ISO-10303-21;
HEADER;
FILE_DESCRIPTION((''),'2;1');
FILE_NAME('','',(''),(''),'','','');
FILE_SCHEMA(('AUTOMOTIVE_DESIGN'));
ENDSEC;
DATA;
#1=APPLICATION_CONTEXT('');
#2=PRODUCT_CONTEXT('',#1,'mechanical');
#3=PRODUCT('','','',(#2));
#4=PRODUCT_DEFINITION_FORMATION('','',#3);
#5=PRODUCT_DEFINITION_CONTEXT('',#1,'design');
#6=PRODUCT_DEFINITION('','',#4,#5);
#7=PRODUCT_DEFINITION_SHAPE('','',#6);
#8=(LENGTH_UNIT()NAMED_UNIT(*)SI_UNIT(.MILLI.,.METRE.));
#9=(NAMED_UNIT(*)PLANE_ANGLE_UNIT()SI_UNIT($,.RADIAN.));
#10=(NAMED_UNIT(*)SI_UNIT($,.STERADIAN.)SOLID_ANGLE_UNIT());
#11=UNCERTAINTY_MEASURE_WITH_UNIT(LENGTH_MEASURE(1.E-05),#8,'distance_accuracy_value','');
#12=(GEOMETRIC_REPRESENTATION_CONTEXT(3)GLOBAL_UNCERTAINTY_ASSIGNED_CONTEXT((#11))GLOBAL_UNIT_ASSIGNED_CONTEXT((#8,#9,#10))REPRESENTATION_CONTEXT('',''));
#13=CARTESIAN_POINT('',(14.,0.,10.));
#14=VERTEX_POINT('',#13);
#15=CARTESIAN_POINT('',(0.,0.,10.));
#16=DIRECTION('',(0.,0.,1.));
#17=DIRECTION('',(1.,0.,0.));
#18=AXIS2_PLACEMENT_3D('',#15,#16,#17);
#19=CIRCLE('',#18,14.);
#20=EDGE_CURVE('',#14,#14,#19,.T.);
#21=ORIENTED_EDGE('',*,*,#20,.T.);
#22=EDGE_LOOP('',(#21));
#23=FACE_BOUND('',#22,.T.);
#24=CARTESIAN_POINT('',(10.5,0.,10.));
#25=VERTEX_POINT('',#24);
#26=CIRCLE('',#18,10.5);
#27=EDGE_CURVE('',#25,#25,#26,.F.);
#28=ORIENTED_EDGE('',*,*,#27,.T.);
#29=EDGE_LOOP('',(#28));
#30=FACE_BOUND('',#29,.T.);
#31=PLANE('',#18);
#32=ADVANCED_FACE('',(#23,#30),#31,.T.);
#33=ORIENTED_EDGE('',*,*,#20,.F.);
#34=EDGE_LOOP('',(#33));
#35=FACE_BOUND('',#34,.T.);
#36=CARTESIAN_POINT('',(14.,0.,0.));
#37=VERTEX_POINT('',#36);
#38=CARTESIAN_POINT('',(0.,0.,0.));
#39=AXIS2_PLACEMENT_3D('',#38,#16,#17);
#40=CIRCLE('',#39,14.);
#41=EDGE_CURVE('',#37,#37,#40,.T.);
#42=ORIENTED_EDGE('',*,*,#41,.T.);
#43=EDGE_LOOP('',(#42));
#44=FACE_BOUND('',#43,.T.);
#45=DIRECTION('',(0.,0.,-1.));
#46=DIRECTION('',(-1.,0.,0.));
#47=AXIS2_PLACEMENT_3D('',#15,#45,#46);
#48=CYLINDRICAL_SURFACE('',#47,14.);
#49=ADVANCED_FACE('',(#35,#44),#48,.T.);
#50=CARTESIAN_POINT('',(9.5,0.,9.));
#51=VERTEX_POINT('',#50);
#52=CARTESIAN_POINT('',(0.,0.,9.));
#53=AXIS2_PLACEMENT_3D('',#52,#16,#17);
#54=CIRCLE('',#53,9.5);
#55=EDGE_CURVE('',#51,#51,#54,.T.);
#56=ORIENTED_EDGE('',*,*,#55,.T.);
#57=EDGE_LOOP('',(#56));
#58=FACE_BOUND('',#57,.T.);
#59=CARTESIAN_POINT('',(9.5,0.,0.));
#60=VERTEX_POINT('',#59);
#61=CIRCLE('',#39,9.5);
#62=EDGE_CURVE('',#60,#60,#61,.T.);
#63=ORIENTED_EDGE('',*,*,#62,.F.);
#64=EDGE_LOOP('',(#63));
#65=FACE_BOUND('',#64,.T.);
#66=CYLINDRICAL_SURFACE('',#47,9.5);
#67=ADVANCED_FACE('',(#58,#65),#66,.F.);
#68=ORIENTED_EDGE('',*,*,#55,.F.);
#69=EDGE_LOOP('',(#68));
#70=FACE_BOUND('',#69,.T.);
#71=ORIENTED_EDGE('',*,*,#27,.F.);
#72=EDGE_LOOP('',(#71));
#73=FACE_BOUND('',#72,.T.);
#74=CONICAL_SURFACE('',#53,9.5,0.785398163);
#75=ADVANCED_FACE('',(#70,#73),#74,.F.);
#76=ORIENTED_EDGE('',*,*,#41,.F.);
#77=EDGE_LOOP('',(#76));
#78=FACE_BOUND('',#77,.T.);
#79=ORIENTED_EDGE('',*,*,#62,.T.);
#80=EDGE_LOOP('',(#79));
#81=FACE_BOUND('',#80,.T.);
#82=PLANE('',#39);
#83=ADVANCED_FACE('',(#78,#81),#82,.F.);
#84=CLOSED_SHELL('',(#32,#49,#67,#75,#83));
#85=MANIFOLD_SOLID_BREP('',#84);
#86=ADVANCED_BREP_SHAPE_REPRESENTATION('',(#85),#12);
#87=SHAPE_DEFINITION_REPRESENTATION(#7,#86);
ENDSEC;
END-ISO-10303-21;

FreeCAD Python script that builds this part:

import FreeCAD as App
import Part
import Sketcher


def edges_at(feature, points):
    """Names of the edges that pass closest to the given points."""
    edges = feature.Shape.Edges
    near = lambda p: min(range(len(edges)), key=lambda i: edges[i].distToShape(Part.Vertex(*p))[0])
    return sorted({f"Edge{near(p) + 1}" for p in points})

doc = App.newDocument("Part")
body = doc.addObject("PartDesign::Body", "Body")

# Sketch on XY plane
sketch1 = body.newObject("Sketcher::SketchObject", "Sketch")
sketch1.AttachmentSupport = (doc.getObject("XY_Plane"), [""])
sketch1.MapMode = "FlatFace"
sketch1.addGeometry(Part.Circle(App.Vector(0, 0, 0), App.Vector(0, 0, 1), 14), False)
sketch1.addGeometry(Part.Circle(App.Vector(0, 0, 0), App.Vector(0, 0, 1), 10), False)
sketch1.addConstraint(Sketcher.Constraint("Coincident", 0, 3, -1, 1))
sketch1.addConstraint(Sketcher.Constraint("Coincident", 1, 3, -1, 1))
sketch1.addConstraint(Sketcher.Constraint("Diameter", 0, 28.0))
sketch1.addConstraint(Sketcher.Constraint("Diameter", 1, 19.0))
pad1 = body.newObject("PartDesign::Pad", "Pad")
pad1.Profile = sketch1
pad1.Length = 10
doc.recompute()

chamfer = body.newObject("PartDesign::Chamfer", "Chamfer")
chamfer.Base = (pad1, edges_at(pad1, [(-9.5, 0, 10)]))
chamfer.Size = 1

doc.recompute()
